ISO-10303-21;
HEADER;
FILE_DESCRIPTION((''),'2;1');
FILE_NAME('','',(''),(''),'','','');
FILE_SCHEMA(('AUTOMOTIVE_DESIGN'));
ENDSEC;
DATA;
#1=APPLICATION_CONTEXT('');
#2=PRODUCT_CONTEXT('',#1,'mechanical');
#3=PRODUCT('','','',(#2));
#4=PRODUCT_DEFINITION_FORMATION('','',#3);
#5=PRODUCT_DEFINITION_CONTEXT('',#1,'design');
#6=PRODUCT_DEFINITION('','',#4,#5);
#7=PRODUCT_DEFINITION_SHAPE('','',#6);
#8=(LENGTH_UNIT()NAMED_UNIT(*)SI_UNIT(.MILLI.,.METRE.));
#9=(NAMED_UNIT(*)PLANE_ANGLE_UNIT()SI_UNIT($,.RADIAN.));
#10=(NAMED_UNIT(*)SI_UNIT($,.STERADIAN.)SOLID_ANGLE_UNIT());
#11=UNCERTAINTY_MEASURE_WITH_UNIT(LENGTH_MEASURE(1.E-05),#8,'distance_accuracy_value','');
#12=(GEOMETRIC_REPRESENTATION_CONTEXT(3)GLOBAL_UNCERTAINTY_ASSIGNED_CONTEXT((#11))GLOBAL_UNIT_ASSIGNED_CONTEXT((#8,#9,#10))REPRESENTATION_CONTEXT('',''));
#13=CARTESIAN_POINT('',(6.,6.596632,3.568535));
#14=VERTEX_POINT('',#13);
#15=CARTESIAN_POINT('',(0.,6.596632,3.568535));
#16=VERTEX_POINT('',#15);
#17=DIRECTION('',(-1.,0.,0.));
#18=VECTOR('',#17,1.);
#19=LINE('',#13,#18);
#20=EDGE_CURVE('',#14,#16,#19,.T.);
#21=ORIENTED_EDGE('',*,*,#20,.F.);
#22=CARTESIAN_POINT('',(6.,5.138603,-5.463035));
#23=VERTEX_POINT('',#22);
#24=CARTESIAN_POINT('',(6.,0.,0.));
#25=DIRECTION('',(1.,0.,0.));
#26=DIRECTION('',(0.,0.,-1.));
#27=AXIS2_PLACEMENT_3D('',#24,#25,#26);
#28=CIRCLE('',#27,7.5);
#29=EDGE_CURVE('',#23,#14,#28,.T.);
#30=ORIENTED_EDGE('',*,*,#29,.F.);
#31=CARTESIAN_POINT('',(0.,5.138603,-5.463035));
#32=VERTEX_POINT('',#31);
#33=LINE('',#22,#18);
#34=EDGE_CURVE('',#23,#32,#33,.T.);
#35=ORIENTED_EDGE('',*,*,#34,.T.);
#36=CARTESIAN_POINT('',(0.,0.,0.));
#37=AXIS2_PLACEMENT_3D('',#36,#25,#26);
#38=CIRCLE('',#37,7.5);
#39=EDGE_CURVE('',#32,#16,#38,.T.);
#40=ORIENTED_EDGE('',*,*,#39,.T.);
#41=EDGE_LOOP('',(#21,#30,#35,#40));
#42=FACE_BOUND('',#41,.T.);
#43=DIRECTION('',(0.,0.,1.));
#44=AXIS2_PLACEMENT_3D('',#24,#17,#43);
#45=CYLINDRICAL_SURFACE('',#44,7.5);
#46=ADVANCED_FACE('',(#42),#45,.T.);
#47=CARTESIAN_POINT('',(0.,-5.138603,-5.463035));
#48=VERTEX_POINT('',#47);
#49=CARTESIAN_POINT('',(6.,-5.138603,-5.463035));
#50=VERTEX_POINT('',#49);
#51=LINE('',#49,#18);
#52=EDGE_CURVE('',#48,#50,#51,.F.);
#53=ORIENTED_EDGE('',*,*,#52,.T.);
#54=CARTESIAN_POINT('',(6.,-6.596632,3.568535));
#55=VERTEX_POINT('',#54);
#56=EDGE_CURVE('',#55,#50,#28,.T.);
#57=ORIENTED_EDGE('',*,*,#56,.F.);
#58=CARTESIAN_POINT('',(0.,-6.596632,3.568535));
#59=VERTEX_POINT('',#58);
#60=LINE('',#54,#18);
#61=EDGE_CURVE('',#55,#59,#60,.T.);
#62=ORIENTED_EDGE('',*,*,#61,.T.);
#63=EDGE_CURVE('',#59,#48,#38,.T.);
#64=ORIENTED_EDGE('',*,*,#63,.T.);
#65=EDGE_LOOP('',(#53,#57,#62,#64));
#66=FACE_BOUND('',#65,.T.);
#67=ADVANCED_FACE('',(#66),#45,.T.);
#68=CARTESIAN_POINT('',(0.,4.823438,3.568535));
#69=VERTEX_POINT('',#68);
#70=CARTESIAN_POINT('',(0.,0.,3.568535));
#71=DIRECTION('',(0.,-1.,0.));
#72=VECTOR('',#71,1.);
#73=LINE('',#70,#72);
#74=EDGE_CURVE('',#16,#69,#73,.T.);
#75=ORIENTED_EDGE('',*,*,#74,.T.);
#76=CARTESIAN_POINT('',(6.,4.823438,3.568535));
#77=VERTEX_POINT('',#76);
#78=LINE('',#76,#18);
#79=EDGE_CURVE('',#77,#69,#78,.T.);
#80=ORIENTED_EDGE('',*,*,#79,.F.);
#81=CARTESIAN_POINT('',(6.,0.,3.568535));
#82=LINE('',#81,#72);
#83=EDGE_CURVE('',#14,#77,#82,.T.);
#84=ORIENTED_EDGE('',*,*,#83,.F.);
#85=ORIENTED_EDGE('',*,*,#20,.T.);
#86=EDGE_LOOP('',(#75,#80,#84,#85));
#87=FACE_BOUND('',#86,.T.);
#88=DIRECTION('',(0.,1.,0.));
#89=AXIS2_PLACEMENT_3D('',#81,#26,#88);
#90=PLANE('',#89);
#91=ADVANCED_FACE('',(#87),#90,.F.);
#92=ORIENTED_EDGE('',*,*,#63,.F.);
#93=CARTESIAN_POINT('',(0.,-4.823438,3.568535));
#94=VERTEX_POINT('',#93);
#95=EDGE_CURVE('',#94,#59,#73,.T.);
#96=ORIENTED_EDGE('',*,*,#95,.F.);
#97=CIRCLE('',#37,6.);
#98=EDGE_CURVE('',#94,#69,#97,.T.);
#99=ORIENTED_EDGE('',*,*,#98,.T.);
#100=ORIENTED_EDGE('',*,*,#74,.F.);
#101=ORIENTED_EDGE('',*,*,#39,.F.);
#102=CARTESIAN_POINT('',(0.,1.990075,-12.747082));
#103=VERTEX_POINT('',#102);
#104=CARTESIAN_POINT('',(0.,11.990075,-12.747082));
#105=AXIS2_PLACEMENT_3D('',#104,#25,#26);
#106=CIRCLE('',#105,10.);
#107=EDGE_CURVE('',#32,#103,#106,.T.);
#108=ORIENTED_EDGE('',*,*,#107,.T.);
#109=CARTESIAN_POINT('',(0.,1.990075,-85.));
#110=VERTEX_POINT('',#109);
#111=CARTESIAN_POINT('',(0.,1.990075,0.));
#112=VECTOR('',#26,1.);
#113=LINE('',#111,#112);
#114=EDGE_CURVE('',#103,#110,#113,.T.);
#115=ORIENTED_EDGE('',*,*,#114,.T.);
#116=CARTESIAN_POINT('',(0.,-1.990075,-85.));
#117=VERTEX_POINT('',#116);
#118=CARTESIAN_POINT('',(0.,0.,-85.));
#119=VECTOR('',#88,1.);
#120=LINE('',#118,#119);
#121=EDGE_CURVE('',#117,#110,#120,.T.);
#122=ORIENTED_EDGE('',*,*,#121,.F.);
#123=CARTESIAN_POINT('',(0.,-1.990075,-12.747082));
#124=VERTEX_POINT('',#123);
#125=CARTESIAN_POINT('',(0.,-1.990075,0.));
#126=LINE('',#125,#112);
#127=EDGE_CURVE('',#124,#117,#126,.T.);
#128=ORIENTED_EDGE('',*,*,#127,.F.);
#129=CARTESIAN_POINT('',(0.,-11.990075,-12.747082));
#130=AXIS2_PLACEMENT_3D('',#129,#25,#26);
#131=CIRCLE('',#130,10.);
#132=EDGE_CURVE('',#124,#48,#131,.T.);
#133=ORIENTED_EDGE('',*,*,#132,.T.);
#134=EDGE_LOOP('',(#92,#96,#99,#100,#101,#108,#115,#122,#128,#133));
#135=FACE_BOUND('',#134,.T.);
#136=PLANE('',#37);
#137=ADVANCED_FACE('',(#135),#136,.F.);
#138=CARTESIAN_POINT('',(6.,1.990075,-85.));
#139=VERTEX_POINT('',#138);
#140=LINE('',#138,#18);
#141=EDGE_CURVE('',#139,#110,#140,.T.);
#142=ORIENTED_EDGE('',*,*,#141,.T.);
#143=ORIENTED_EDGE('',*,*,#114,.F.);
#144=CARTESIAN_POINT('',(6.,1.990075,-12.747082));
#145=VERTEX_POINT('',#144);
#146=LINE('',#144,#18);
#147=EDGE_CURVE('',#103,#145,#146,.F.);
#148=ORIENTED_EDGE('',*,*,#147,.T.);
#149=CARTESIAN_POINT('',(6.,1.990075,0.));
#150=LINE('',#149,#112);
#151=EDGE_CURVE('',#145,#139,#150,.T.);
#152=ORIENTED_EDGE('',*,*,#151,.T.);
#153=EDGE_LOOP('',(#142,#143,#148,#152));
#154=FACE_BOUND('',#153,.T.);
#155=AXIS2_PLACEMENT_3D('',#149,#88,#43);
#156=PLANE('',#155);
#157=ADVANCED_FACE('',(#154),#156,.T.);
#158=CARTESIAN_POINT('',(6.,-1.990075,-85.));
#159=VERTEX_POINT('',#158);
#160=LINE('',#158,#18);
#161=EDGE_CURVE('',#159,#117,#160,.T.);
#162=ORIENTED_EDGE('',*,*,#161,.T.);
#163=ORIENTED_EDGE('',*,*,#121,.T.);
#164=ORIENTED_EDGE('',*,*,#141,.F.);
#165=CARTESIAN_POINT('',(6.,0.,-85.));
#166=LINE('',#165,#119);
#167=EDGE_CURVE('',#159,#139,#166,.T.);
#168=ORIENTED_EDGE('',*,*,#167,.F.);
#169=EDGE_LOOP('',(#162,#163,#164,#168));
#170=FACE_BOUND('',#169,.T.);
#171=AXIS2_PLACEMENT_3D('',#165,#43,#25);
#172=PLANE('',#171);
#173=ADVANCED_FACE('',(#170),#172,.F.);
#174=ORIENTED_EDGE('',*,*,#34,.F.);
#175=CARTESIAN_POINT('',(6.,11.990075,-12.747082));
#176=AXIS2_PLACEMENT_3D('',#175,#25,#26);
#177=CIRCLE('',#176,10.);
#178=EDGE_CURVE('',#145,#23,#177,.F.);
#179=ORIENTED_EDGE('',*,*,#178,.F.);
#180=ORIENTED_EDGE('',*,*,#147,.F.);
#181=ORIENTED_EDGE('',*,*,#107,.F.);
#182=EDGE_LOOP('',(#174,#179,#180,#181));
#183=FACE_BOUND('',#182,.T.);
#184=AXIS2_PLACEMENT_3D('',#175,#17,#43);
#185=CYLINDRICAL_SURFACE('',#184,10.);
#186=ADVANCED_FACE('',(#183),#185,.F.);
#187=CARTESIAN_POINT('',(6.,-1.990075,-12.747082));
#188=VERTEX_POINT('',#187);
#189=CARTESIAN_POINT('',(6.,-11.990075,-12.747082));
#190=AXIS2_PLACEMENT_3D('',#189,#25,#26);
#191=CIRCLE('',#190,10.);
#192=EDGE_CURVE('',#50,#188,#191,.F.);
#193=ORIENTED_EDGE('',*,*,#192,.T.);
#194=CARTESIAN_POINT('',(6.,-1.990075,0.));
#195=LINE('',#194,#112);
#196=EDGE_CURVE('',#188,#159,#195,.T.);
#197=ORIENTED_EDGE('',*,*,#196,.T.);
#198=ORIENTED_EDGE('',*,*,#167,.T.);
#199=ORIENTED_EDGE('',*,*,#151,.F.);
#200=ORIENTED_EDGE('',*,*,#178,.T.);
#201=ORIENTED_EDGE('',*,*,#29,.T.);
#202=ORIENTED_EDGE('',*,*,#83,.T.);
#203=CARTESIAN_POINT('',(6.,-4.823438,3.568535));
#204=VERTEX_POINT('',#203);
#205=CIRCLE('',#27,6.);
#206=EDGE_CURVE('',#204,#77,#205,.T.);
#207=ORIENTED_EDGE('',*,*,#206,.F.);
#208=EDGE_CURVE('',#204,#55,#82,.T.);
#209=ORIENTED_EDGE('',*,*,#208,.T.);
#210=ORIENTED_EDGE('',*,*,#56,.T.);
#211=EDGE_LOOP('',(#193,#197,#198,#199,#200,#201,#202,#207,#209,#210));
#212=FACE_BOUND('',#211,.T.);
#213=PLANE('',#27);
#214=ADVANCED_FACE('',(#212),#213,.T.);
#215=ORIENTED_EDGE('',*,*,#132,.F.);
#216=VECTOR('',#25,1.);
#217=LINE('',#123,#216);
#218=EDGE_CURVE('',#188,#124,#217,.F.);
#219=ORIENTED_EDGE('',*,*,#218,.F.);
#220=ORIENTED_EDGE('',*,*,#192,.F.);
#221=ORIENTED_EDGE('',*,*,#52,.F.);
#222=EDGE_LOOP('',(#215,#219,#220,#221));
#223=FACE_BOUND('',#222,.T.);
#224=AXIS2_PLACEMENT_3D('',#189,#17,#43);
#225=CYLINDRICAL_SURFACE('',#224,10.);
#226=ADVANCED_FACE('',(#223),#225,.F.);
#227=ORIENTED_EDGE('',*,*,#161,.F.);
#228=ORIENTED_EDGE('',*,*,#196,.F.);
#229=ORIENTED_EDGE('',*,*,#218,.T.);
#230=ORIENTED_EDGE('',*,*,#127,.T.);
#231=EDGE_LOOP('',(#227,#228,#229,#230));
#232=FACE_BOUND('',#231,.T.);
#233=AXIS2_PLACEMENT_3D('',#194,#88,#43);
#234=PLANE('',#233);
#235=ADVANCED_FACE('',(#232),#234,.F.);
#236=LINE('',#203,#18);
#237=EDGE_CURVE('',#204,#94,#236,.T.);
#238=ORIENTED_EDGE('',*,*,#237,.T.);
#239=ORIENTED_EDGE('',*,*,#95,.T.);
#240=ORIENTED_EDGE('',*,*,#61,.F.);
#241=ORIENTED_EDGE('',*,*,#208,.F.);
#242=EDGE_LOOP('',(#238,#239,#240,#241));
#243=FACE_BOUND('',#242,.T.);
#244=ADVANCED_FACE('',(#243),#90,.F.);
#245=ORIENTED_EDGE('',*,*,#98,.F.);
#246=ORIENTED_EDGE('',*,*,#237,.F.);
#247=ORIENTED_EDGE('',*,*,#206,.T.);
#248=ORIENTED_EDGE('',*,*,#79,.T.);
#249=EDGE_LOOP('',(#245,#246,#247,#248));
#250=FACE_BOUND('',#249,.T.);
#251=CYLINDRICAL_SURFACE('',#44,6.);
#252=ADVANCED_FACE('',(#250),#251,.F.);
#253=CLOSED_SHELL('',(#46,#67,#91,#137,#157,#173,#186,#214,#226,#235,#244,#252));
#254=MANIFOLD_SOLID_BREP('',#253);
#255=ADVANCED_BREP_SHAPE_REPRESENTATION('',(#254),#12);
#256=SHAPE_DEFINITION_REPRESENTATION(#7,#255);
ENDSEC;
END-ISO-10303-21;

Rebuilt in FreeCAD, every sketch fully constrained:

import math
import FreeCAD as App
import Part
import Sketcher

V = App.Vector
Q = App.Units.Quantity


def edges_at(feature, points):
    """Names of the edges that pass closest to the given points."""
    edges = feature.Shape.Edges
    near = lambda p: min(range(len(edges)), key=lambda i: edges[i].distToShape(Part.Vertex(*p))[0])
    return sorted({f"Edge{near(p) + 1}" for p in points})

doc = App.newDocument("Part")
params = doc.addObject("Spreadsheet::Sheet", "Params")
for row, (alias, value) in enumerate([
    ("sketch1_radius", "6 mm"),
    ("sketch1_radius2", "7.5 mm"),
    ("pad1_length", "6 mm"),
    ("fillet_radius", "10 mm"),
], start=1):
    params.set(f"A{row}", alias)
    params.set(f"B{row}", "=" + value)
    params.setAlias(f"B{row}", alias)

body = doc.addObject("PartDesign::Body", "Body")

sketch1 = body.newObject("Sketcher::SketchObject", "Sketch")
sketch1.AttachmentSupport = (doc.getObject("YZ_Plane"), [""])
sketch1.MapMode = "FlatFace"
sketch1.addGeometry(Part.ArcOfCircle(Part.Circle(V(0, 0, 0), V(0, 0, 1), 7.5), math.radians(-74.612649), math.radians(28.411756)), False)
sketch1.addGeometry(Part.LineSegment(V(6.596632, 3.568535, 0), V(4.823438, 3.568535, 0)), False)
sketch1.addGeometry(Part.ArcOfCircle(Part.Circle(V(0, 0, 0), V(0, 0, 1), 6), math.radians(143.50477), math.radians(396.49523)), False)
sketch1.addGeometry(Part.LineSegment(V(-4.823438, 3.568535, 0), V(-6.596632, 3.568535, 0)), False)
sketch1.addGeometry(Part.ArcOfCircle(Part.Circle(V(0, 0, 0), V(0, 0, 1), 7.5), math.radians(151.588244), math.radians(254.612649)), False)
sketch1.addGeometry(Part.LineSegment(V(-1.990075, -7.231155, 0), V(-1.990075, -85, 0)), False)
sketch1.addGeometry(Part.LineSegment(V(-1.990075, -85, 0), V(1.990075, -85, 0)), False)
sketch1.addGeometry(Part.LineSegment(V(1.990075, -85, 0), V(1.990075, -7.231155, 0)), False)
sketch1.addConstraint(Sketcher.Constraint("Coincident", 0, 2, 1, 1))
sketch1.addConstraint(Sketcher.Constraint("Coincident", 1, 2, 2, 2))
sketch1.addConstraint(Sketcher.Constraint("Coincident", 2, 1, 3, 1))
sketch1.addConstraint(Sketcher.Constraint("Coincident", 3, 2, 4, 1))
sketch1.addConstraint(Sketcher.Constraint("Coincident", 4, 2, 5, 1))
sketch1.addConstraint(Sketcher.Constraint("Coincident", 5, 2, 6, 1))
sketch1.addConstraint(Sketcher.Constraint("Coincident", 6, 2, 7, 1))
sketch1.addConstraint(Sketcher.Constraint("Coincident", 7, 2, 0, 1))
sketch1.addConstraint(Sketcher.Constraint("Horizontal", 1))
sketch1.addConstraint(Sketcher.Constraint("Horizontal", 3))
sketch1.addConstraint(Sketcher.Constraint("Vertical", 5))
sketch1.addConstraint(Sketcher.Constraint("Horizontal", 6))
sketch1.addConstraint(Sketcher.Constraint("Vertical", 7))
sketch1.addConstraint(Sketcher.Constraint("Coincident", 0, 3, -1, 1))
sketch1.addConstraint(Sketcher.Constraint("Coincident", 2, 3, -1, 1))
sketch1.addConstraint(Sketcher.Constraint("Coincident", 4, 3, -1, 1))
sketch1.addConstraint(Sketcher.Constraint("Equal", 0, 4))
sketch1.addConstraint(Sketcher.Constraint("Horizontal", 1, 2, 2, 1))
sketch1.addConstraint(Sketcher.Constraint("Horizontal", 4, 2, 7, 2))
sketch1.addConstraint(Sketcher.Constraint("Radius", 2, Q("6 mm")))
sketch1.addConstraint(Sketcher.Constraint("Radius", 0, Q("7.5 mm")))
sketch1.addConstraint(Sketcher.Constraint("DistanceY", 5, 2, -1, 1, Q("85 mm")))
sketch1.addConstraint(Sketcher.Constraint("DistanceX", 6, 1, 6, 2, Q("3.980149 mm")))
sketch1.addConstraint(Sketcher.Constraint("DistanceX", 1, 2, 1, 1, Q("1.773194 mm")))
sketch1.setExpression("Constraints[19]", "Params.sketch1_radius")
sketch1.setExpression("Constraints[20]", "Params.sketch1_radius2")
pad1 = body.newObject("PartDesign::Pad", "Pad")
pad1.Profile = sketch1
pad1.setExpression("Length", "Params.pad1_length")
doc.recompute()

fillet = body.newObject("PartDesign::Fillet", "Fillet")
fillet.Base = (pad1, edges_at(pad1, [(3, 1.99, -7.231), (3, -1.99, -7.231)]))
fillet.setExpression("Radius", "Params.fillet_radius")

doc.recompute()
